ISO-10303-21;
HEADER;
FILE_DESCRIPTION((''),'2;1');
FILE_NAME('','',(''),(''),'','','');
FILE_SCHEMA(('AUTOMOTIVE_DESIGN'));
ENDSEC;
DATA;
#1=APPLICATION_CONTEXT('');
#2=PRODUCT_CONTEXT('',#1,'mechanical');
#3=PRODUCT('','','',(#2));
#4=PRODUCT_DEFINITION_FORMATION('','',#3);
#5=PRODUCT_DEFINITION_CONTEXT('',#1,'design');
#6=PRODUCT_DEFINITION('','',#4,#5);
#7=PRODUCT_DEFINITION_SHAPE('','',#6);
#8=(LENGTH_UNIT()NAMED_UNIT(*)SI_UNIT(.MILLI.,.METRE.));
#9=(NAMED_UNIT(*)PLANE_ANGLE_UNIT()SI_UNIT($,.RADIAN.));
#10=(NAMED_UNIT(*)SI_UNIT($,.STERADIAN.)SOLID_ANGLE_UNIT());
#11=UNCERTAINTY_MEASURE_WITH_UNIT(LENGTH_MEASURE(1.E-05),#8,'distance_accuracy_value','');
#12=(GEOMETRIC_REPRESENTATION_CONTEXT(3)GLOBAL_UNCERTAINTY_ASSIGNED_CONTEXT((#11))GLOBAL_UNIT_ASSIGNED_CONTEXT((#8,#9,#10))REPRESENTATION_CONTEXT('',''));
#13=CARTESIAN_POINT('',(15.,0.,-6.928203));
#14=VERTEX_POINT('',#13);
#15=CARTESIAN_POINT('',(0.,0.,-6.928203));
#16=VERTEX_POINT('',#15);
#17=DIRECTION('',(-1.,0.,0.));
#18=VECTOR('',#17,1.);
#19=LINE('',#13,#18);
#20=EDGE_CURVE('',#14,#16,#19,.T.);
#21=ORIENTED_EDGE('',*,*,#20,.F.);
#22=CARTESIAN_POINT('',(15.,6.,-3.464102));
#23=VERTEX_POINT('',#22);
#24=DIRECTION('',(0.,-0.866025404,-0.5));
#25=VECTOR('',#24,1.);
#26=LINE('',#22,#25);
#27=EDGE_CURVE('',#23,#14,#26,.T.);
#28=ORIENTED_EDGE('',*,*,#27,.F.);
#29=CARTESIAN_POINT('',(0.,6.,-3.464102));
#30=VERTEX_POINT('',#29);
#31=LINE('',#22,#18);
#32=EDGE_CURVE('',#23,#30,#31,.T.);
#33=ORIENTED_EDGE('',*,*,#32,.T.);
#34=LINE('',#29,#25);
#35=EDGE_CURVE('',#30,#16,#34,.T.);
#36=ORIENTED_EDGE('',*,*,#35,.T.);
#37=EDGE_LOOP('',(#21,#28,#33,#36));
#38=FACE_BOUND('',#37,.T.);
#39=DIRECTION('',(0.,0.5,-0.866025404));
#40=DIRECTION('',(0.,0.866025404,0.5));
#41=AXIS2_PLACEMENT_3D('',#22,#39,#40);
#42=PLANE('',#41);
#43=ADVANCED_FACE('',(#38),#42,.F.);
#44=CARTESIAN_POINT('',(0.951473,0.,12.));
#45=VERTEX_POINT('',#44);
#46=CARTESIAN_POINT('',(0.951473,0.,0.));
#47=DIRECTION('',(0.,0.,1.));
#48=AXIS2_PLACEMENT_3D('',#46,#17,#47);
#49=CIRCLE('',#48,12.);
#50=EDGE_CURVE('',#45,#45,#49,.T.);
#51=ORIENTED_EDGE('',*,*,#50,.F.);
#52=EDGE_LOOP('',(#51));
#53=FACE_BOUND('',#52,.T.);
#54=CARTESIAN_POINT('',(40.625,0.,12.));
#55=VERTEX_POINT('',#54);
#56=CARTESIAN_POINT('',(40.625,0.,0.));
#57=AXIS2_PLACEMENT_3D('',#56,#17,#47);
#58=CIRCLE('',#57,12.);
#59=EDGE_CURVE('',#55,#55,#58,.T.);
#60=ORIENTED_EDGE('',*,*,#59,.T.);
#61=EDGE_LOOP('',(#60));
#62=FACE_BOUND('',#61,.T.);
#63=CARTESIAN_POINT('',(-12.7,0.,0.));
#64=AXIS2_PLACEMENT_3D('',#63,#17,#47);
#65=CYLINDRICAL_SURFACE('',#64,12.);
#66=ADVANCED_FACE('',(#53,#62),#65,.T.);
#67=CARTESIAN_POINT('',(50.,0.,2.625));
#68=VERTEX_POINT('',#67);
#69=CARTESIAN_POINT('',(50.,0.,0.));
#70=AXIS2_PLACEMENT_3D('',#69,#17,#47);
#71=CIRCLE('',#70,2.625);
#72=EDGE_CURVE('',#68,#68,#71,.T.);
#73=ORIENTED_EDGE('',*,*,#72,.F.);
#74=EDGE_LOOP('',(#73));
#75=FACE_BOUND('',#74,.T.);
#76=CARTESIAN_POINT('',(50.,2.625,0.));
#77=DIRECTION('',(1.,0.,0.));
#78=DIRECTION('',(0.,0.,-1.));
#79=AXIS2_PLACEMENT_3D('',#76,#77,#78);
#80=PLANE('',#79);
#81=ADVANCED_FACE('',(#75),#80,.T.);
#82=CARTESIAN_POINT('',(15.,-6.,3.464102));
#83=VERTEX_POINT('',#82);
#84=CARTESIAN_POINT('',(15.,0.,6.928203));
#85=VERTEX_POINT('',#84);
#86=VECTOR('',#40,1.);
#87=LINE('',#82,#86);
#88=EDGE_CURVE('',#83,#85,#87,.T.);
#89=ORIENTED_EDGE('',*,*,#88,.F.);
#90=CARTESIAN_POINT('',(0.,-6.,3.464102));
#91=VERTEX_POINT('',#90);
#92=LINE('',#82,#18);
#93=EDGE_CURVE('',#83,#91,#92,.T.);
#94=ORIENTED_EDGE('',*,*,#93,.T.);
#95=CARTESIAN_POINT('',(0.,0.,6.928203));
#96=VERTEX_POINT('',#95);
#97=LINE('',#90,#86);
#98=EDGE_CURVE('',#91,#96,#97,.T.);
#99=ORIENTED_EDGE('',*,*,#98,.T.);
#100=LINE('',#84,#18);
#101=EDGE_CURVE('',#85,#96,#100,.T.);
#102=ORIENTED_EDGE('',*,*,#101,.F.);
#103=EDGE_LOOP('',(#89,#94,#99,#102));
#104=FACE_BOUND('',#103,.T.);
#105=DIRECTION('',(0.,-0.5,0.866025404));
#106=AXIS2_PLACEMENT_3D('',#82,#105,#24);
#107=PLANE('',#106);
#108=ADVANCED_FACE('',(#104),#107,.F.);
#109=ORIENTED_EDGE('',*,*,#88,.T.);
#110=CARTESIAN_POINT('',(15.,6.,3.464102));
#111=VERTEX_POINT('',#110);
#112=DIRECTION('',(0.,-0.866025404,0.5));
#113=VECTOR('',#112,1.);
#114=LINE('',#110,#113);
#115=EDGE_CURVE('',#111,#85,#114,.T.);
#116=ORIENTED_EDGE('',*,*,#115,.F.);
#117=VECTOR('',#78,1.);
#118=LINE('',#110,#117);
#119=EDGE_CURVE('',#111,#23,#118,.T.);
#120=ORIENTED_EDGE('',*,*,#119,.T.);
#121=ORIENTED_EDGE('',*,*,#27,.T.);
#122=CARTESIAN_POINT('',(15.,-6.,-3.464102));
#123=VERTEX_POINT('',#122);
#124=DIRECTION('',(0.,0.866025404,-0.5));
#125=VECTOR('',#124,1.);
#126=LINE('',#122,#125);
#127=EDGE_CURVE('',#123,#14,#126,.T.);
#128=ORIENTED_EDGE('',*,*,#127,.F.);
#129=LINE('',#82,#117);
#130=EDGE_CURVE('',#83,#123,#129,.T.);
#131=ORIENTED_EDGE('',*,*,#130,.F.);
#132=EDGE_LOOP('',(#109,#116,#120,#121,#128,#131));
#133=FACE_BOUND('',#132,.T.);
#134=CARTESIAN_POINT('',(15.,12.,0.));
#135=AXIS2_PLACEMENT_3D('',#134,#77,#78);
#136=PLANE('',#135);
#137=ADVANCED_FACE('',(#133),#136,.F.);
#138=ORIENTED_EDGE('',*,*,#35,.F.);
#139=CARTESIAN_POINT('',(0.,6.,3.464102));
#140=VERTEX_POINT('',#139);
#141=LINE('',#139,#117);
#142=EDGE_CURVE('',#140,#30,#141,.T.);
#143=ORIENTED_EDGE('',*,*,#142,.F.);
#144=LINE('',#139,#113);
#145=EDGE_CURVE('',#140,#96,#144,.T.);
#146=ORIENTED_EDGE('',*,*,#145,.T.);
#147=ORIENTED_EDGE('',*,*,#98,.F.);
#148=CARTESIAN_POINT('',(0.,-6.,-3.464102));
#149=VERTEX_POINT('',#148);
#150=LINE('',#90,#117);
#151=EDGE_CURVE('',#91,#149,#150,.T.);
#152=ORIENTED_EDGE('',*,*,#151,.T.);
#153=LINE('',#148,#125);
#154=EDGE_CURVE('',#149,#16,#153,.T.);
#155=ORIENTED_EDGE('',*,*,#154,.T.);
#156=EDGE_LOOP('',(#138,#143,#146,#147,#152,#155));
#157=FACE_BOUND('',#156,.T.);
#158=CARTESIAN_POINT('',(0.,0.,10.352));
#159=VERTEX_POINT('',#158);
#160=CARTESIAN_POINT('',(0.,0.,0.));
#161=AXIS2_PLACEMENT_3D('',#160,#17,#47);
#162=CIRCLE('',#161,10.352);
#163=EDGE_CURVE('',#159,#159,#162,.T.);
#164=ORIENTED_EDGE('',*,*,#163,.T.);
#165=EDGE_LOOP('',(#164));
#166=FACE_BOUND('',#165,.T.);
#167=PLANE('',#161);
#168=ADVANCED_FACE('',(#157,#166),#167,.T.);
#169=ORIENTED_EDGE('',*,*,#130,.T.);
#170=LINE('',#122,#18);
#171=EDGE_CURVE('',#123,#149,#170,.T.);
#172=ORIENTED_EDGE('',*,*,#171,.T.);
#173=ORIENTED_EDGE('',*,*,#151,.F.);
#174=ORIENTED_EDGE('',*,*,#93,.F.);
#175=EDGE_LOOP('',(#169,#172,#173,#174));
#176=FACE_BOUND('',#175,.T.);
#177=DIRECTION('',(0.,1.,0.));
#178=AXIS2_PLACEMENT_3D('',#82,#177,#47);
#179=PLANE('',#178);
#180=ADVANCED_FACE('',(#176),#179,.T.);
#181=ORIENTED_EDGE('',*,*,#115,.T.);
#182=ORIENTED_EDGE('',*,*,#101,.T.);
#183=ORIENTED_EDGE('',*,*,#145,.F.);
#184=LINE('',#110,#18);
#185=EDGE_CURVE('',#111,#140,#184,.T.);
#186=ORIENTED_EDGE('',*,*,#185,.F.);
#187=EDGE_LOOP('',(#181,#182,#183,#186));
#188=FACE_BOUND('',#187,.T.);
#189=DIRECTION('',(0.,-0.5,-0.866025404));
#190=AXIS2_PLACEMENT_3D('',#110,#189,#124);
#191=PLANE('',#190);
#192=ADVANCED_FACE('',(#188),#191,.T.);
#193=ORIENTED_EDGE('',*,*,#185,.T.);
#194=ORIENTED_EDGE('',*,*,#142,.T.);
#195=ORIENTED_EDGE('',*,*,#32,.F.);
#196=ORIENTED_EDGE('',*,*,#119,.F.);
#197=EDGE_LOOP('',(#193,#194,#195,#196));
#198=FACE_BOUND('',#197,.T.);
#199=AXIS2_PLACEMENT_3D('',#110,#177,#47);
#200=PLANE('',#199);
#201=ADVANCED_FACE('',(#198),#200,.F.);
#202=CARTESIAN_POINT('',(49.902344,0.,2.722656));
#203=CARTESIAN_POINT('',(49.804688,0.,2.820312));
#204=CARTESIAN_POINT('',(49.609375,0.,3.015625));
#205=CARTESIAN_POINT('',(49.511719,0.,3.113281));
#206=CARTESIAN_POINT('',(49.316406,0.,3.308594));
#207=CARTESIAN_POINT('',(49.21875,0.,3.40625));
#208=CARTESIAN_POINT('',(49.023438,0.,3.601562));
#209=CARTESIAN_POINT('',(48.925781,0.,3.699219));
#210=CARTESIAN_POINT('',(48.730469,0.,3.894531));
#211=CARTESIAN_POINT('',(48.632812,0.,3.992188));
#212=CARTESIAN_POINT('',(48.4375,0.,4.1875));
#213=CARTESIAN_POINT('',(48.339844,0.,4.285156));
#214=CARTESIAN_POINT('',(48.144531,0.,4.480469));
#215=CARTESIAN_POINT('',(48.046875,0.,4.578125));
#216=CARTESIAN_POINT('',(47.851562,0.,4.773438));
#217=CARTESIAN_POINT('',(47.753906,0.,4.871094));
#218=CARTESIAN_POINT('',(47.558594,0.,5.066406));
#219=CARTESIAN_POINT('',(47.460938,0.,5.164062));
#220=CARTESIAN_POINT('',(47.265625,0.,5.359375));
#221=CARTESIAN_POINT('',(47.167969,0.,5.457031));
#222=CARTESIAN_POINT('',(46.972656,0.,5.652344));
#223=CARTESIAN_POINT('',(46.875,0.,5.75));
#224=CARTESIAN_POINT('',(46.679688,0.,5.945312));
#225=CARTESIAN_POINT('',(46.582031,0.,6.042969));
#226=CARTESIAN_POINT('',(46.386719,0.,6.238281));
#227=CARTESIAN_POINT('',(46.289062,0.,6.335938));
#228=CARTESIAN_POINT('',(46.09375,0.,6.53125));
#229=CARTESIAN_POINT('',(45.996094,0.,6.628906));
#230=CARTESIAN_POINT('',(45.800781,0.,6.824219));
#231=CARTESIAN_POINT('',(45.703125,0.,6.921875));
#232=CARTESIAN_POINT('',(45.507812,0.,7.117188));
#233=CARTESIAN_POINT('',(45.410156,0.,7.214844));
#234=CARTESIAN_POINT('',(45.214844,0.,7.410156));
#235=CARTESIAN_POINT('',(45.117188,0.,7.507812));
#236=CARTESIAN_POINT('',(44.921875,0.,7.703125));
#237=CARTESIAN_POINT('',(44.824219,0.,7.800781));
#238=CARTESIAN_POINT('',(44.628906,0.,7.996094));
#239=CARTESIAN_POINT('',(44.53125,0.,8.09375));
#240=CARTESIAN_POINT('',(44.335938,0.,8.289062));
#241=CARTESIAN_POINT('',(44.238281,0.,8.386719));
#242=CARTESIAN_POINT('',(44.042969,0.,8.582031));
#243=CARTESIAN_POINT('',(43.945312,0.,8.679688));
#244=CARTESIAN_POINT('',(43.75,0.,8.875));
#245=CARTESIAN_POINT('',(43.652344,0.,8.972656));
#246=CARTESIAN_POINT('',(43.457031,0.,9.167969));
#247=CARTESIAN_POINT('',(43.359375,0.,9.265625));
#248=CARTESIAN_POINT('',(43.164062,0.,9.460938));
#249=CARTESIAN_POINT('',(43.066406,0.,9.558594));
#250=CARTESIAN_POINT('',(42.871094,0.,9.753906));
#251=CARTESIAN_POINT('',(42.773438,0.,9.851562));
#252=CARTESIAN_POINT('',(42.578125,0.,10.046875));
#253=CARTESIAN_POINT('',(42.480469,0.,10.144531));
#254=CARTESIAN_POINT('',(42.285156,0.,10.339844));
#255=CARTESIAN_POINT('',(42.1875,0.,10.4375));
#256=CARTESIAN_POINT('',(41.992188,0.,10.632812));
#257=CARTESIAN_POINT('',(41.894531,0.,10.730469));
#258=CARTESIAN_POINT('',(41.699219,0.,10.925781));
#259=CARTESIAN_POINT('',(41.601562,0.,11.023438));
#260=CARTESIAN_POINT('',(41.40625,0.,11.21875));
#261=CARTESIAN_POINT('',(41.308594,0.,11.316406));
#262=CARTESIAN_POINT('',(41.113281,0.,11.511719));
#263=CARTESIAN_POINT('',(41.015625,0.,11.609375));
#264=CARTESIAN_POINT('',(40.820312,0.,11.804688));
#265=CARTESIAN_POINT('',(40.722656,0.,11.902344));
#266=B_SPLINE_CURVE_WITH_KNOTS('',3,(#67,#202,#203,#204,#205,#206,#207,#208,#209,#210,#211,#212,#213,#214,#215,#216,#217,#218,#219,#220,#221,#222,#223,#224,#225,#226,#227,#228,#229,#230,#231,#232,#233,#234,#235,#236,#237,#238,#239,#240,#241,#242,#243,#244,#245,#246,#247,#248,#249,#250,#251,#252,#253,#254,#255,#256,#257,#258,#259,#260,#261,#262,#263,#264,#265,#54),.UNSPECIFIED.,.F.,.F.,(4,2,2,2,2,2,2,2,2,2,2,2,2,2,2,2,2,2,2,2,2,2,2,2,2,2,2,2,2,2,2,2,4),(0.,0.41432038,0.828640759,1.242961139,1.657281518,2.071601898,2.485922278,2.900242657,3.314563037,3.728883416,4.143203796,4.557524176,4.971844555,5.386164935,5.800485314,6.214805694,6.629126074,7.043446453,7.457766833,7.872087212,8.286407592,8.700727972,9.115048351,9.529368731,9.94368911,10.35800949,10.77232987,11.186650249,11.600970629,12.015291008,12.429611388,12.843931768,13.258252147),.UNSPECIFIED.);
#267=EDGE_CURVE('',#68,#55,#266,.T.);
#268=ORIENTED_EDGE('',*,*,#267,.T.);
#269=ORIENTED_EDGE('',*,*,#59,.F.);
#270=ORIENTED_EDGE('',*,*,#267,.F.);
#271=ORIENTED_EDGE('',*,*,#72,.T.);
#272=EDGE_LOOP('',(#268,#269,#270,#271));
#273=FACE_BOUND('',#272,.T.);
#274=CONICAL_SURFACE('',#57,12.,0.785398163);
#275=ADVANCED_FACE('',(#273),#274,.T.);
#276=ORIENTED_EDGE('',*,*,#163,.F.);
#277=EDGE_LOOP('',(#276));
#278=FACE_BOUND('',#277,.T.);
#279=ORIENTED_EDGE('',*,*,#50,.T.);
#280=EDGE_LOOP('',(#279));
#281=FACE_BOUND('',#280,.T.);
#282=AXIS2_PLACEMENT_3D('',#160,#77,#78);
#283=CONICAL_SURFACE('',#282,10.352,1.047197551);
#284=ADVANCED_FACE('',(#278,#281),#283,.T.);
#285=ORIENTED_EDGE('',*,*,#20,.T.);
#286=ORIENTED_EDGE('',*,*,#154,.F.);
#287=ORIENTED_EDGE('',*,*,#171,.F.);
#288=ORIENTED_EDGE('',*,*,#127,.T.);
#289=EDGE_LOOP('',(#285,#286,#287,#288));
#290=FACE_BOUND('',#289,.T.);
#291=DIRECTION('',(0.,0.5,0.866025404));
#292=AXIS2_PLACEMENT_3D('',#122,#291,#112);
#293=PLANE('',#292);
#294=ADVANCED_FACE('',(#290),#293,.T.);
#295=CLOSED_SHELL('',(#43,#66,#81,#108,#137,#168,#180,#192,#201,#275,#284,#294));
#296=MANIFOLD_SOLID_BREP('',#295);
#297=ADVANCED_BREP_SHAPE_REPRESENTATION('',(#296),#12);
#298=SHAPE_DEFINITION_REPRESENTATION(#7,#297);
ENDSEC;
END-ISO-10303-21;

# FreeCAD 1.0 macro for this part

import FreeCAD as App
import Part
import Sketcher
Q = App.Units.Quantity

doc = App.newDocument("Part")
body = doc.addObject("PartDesign::Body", "Body")

# Sketch on XY plane
sketch1 = doc.addObject("Sketcher::SketchObject", "Sketch")
body.addObject(sketch1)
sketch1.AttachmentSupport = (doc.XY_Plane, [""])
sketch1.MapMode = "FlatFace"
sketch1.addGeometry([
    Part.LineSegment(App.Vector(0, 10.4, 0), App.Vector(0, 0, 0)),  # 0
    Part.LineSegment(App.Vector(0, 0, 0), App.Vector(50, 0, 0)),  # 1
    Part.LineSegment(App.Vector(50, 0, 0), App.Vector(50, 2.6, 0)),  # 2
    Part.LineSegment(App.Vector(50, 2.6, 0), App.Vector(40.6, 12, 0)),  # 3
    Part.LineSegment(App.Vector(40.6, 12, 0), App.Vector(1, 12, 0)),  # 4
    Part.LineSegment(App.Vector(1, 12, 0), App.Vector(0, 10.4, 0)),  # 5
], False)
sketch1.addConstraint([
    Sketcher.Constraint("Coincident", 0, 2, 1, 1),
    Sketcher.Constraint("Coincident", 1, 2, 2, 1),
    Sketcher.Constraint("Coincident", 2, 2, 3, 1),
    Sketcher.Constraint("Coincident", 3, 2, 4, 1),
    Sketcher.Constraint("Coincident", 4, 2, 5, 1),
    Sketcher.Constraint("Coincident", 5, 2, 0, 1),
    Sketcher.Constraint("Vertical", 0),
    Sketcher.Constraint("Horizontal", 1),
    Sketcher.Constraint("Vertical", 2),
    Sketcher.Constraint("Horizontal", 4),
    Sketcher.Constraint("Coincident", 0, 2, -1, 1),
    Sketcher.Constraint("DistanceX", 1, 1, 1, 2, Q("50 mm")),
    Sketcher.Constraint("Angle", 3, Q("135 deg")),
    Sketcher.Constraint("Angle", 5, Q("-120 deg")),
    Sketcher.Constraint("DistanceY", -1, 1, 3, 2, Q("12 mm")),
    Sketcher.Constraint("DistanceY", 0, 2, 0, 1, Q("10.352 mm")),
    Sketcher.Constraint("DistanceY", 2, 1, 2, 2, Q("2.625 mm")),
])
revolution = doc.addObject("PartDesign::Revolution", "Revolution")
body.addObject(revolution)
revolution.Profile = sketch1
revolution.ReferenceAxis = (sketch1, ["H_Axis"])
revolution.Angle = 360

# Sketch on YZ plane
sketch2 = doc.addObject("Sketcher::SketchObject", "Sketch001")
body.addObject(sketch2)
sketch2.AttachmentSupport = (doc.YZ_Plane, [""])
sketch2.MapMode = "FlatFace"
sketch2.addGeometry([
    Part.LineSegment(App.Vector(6, 3, 0), App.Vector(6, -3, 0)),  # 0
    Part.LineSegment(App.Vector(6, -3, 0), App.Vector(0, -7, 0)),  # 1
    Part.LineSegment(App.Vector(0, -7, 0), App.Vector(-6, -3, 0)),  # 2
    Part.LineSegment(App.Vector(-6, -3, 0), App.Vector(-6, 3, 0)),  # 3
    Part.LineSegment(App.Vector(-6, 3, 0), App.Vector(0, 7, 0)),  # 4
    Part.LineSegment(App.Vector(0, 7, 0), App.Vector(6, 3, 0)),  # 5
], False)
sketch2.addConstraint([
    Sketcher.Constraint("Coincident", 0, 2, 1, 1),
    Sketcher.Constraint("Coincident", 1, 2, 2, 1),
    Sketcher.Constraint("Coincident", 2, 2, 3, 1),
    Sketcher.Constraint("Coincident", 3, 2, 4, 1),
    Sketcher.Constraint("Coincident", 4, 2, 5, 1),
    Sketcher.Constraint("Coincident", 5, 2, 0, 1),
    Sketcher.Constraint("Vertical", 0),
    Sketcher.Constraint("Vertical", 3),
    Sketcher.Constraint("Symmetric", 0, 2, 3, 2, -1, 1),
    Sketcher.Constraint("Symmetric", 1, 2, 4, 2, -1, 1),
    Sketcher.Constraint("PointOnObject", 1, 2, -2),
    Sketcher.Constraint("Parallel", 2, 5),
    Sketcher.Constraint("Horizontal", 0, 2, 2, 2),
    Sketcher.Constraint("Angle", 1, Q("-150 deg")),
    Sketcher.Constraint("DistanceX", -1, 1, 0, 2, Q("6 mm")),
    Sketcher.Constraint("DistanceY", 0, 2, -1, 1, Q("3.464102 mm")),
])
pocket1 = doc.addObject("PartDesign::Pocket", "Pocket")
body.addObject(pocket1)
pocket1.Profile = sketch2
pocket1.Length = 15
pocket1.Reversed = True

doc.recompute()
